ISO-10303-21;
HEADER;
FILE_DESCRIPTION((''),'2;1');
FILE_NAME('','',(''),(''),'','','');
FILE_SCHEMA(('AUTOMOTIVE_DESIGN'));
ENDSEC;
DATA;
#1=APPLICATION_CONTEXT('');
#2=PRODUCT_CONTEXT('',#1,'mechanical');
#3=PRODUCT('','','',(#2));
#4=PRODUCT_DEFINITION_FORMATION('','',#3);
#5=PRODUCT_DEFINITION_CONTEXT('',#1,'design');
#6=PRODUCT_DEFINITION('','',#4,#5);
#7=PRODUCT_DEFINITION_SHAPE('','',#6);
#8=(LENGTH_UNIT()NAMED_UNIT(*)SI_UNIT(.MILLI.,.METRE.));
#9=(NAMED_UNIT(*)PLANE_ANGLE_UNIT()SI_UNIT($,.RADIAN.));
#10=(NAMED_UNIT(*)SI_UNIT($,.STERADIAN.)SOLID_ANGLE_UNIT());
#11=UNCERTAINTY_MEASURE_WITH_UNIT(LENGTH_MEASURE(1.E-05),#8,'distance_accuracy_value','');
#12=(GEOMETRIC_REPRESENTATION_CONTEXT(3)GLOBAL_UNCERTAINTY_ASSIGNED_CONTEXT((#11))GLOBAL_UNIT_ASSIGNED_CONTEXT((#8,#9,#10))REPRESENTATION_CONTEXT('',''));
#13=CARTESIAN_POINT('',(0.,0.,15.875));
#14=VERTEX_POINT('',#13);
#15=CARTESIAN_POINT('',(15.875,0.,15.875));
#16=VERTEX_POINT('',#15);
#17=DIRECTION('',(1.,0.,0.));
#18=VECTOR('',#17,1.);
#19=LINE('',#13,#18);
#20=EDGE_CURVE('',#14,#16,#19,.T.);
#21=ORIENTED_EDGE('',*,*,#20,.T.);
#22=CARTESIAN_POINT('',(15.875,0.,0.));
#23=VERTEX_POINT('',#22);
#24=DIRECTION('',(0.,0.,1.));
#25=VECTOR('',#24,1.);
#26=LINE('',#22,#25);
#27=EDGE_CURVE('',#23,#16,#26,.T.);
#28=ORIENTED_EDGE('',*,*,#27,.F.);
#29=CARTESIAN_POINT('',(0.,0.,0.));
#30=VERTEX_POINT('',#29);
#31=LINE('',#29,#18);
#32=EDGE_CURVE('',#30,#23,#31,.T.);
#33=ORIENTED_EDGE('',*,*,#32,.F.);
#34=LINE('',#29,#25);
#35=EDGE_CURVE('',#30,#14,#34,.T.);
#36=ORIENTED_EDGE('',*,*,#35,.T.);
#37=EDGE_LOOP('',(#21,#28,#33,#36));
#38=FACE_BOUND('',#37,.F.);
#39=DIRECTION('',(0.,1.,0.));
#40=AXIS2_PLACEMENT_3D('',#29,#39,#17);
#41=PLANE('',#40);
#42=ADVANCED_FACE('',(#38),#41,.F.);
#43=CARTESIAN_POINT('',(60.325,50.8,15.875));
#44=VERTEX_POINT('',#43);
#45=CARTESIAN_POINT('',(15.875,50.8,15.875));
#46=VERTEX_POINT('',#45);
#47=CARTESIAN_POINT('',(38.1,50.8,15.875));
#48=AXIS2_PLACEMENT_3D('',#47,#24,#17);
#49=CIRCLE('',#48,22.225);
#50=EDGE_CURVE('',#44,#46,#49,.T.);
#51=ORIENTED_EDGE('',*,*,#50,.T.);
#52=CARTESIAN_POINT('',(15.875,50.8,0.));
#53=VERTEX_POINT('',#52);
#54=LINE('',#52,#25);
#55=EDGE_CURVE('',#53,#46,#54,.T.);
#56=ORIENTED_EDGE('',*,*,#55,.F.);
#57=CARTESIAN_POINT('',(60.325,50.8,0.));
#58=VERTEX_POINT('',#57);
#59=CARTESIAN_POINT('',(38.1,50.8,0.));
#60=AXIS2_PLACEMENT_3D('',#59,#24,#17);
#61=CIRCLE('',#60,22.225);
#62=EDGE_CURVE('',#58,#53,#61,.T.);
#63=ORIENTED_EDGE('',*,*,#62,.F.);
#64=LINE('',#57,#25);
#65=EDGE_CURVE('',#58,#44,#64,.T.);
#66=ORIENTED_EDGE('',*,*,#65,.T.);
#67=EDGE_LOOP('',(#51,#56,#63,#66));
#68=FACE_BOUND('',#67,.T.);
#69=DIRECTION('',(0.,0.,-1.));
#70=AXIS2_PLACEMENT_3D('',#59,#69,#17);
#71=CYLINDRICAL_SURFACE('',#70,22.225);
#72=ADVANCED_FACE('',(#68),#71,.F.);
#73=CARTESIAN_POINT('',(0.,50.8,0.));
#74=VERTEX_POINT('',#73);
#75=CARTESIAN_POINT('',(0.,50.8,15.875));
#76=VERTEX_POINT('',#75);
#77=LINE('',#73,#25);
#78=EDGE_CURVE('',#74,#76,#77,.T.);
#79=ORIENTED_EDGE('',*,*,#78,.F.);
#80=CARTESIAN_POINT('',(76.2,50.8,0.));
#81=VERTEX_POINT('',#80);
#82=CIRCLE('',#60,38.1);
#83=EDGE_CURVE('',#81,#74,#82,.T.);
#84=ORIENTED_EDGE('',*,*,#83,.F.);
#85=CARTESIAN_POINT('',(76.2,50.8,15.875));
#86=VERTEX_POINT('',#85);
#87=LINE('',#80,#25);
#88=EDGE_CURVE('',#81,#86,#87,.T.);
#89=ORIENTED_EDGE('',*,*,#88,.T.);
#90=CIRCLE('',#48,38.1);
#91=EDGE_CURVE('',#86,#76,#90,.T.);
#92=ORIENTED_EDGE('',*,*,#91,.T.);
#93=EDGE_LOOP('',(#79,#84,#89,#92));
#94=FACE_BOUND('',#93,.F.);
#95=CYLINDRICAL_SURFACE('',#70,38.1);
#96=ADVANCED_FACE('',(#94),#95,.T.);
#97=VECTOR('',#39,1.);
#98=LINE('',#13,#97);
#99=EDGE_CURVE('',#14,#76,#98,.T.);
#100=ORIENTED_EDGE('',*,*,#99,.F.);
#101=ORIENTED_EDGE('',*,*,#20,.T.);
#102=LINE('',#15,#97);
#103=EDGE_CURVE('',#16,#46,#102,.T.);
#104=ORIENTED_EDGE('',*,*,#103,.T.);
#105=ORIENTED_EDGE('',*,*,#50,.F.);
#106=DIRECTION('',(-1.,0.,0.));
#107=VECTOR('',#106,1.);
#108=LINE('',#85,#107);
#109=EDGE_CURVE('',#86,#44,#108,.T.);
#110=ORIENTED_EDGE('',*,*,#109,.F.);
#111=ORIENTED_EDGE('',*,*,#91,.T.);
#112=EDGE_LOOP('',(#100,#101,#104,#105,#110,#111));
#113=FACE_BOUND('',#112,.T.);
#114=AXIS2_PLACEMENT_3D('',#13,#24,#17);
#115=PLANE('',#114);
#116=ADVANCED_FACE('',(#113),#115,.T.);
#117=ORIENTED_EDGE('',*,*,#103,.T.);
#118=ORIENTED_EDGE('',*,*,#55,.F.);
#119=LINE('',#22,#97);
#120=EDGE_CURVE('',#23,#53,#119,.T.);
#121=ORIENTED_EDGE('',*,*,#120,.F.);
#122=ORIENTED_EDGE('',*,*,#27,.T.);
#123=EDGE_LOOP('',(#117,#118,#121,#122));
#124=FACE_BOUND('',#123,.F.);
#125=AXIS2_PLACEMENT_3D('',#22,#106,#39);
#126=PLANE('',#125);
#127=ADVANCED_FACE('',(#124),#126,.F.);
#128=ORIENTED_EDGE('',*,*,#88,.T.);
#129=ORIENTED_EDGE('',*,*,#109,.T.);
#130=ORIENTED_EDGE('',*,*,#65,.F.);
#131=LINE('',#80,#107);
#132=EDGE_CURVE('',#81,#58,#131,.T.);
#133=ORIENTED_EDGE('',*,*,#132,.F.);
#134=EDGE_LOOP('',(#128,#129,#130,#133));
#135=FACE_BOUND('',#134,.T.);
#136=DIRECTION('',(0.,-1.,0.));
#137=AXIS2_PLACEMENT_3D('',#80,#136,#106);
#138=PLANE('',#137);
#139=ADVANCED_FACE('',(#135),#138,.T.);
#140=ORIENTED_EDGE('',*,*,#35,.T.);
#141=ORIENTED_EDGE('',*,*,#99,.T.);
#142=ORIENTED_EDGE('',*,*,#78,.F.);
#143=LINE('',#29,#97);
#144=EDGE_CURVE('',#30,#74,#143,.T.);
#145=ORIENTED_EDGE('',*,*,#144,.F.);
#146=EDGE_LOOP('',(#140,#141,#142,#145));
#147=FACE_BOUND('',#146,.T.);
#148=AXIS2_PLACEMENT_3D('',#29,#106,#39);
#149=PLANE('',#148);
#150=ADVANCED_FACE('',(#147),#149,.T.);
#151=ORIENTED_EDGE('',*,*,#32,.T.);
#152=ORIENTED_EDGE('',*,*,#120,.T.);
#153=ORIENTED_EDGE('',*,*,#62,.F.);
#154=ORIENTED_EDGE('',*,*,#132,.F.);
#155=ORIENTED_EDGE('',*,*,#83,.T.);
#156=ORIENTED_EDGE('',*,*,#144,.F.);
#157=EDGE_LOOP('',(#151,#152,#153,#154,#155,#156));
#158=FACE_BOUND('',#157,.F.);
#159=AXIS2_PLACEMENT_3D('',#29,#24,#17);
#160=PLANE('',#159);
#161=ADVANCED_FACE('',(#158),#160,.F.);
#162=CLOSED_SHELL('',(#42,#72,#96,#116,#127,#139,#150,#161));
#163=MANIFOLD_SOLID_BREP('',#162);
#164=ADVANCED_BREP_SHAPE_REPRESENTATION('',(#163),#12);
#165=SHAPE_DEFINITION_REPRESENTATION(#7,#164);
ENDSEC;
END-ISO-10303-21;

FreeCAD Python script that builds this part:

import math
import FreeCAD as App
import Part
import Sketcher
Q = App.Units.Quantity

doc = App.newDocument("Part")
body = doc.addObject("PartDesign::Body", "Body")

# Sketch on XY plane
sketch1 = doc.addObject("Sketcher::SketchObject", "Sketch")
body.addObject(sketch1)
sketch1.AttachmentSupport = (doc.XY_Plane, [""])
sketch1.MapMode = "FlatFace"
sketch1.addGeometry([
    Part.LineSegment(App.Vector(0, 51, 0), App.Vector(0, 0, 0)),  # 0
    Part.LineSegment(App.Vector(0, 0, 0), App.Vector(16, 0, 0)),  # 1
    Part.LineSegment(App.Vector(16, 0, 0), App.Vector(16, 51, 0)),  # 2
    Part.ArcOfCircle(Part.Circle(App.Vector(38, 51, 0), App.Vector(0, 0, 1), 22), math.radians(0), math.radians(180)),  # 3
    Part.LineSegment(App.Vector(60, 51, 0), App.Vector(76, 51, 0)),  # 4
    Part.ArcOfCircle(Part.Circle(App.Vector(38, 51, 0), App.Vector(0, 0, 1), 38), math.radians(0), math.radians(180)),  # 5
], False)
sketch1.addConstraint([
    Sketcher.Constraint("Coincident", 0, 2, 1, 1),
    Sketcher.Constraint("Coincident", 1, 2, 2, 1),
    Sketcher.Constraint("Tangent", 2, 2, 3, 2),
    Sketcher.Constraint("Coincident", 3, 1, 4, 1),
    Sketcher.Constraint("Coincident", 4, 2, 5, 1),
    Sketcher.Constraint("Tangent", 5, 2, 0, 1),
    Sketcher.Constraint("Vertical", 0),
    Sketcher.Constraint("Horizontal", 1),
    Sketcher.Constraint("Vertical", 2),
    Sketcher.Constraint("Horizontal", 4),
    Sketcher.Constraint("Coincident", 0, 2, -1, 1),
    Sketcher.Constraint("Coincident", 5, 3, 3, 3),
    Sketcher.Constraint("Horizontal", 2, 2, 3, 1),
    Sketcher.Constraint("Radius", 5, Q("1.5 in")),
    Sketcher.Constraint("DistanceY", 0, 2, 0, 1, Q("2 in")),
    Sketcher.Constraint("DistanceX", 1, 1, 1, 2, Q("0.625 in")),
])
pad1 = doc.addObject("PartDesign::Pad", "Pad")
body.addObject(pad1)
pad1.Profile = sketch1
pad1.Length = Q("0.625 in")

doc.recompute()
